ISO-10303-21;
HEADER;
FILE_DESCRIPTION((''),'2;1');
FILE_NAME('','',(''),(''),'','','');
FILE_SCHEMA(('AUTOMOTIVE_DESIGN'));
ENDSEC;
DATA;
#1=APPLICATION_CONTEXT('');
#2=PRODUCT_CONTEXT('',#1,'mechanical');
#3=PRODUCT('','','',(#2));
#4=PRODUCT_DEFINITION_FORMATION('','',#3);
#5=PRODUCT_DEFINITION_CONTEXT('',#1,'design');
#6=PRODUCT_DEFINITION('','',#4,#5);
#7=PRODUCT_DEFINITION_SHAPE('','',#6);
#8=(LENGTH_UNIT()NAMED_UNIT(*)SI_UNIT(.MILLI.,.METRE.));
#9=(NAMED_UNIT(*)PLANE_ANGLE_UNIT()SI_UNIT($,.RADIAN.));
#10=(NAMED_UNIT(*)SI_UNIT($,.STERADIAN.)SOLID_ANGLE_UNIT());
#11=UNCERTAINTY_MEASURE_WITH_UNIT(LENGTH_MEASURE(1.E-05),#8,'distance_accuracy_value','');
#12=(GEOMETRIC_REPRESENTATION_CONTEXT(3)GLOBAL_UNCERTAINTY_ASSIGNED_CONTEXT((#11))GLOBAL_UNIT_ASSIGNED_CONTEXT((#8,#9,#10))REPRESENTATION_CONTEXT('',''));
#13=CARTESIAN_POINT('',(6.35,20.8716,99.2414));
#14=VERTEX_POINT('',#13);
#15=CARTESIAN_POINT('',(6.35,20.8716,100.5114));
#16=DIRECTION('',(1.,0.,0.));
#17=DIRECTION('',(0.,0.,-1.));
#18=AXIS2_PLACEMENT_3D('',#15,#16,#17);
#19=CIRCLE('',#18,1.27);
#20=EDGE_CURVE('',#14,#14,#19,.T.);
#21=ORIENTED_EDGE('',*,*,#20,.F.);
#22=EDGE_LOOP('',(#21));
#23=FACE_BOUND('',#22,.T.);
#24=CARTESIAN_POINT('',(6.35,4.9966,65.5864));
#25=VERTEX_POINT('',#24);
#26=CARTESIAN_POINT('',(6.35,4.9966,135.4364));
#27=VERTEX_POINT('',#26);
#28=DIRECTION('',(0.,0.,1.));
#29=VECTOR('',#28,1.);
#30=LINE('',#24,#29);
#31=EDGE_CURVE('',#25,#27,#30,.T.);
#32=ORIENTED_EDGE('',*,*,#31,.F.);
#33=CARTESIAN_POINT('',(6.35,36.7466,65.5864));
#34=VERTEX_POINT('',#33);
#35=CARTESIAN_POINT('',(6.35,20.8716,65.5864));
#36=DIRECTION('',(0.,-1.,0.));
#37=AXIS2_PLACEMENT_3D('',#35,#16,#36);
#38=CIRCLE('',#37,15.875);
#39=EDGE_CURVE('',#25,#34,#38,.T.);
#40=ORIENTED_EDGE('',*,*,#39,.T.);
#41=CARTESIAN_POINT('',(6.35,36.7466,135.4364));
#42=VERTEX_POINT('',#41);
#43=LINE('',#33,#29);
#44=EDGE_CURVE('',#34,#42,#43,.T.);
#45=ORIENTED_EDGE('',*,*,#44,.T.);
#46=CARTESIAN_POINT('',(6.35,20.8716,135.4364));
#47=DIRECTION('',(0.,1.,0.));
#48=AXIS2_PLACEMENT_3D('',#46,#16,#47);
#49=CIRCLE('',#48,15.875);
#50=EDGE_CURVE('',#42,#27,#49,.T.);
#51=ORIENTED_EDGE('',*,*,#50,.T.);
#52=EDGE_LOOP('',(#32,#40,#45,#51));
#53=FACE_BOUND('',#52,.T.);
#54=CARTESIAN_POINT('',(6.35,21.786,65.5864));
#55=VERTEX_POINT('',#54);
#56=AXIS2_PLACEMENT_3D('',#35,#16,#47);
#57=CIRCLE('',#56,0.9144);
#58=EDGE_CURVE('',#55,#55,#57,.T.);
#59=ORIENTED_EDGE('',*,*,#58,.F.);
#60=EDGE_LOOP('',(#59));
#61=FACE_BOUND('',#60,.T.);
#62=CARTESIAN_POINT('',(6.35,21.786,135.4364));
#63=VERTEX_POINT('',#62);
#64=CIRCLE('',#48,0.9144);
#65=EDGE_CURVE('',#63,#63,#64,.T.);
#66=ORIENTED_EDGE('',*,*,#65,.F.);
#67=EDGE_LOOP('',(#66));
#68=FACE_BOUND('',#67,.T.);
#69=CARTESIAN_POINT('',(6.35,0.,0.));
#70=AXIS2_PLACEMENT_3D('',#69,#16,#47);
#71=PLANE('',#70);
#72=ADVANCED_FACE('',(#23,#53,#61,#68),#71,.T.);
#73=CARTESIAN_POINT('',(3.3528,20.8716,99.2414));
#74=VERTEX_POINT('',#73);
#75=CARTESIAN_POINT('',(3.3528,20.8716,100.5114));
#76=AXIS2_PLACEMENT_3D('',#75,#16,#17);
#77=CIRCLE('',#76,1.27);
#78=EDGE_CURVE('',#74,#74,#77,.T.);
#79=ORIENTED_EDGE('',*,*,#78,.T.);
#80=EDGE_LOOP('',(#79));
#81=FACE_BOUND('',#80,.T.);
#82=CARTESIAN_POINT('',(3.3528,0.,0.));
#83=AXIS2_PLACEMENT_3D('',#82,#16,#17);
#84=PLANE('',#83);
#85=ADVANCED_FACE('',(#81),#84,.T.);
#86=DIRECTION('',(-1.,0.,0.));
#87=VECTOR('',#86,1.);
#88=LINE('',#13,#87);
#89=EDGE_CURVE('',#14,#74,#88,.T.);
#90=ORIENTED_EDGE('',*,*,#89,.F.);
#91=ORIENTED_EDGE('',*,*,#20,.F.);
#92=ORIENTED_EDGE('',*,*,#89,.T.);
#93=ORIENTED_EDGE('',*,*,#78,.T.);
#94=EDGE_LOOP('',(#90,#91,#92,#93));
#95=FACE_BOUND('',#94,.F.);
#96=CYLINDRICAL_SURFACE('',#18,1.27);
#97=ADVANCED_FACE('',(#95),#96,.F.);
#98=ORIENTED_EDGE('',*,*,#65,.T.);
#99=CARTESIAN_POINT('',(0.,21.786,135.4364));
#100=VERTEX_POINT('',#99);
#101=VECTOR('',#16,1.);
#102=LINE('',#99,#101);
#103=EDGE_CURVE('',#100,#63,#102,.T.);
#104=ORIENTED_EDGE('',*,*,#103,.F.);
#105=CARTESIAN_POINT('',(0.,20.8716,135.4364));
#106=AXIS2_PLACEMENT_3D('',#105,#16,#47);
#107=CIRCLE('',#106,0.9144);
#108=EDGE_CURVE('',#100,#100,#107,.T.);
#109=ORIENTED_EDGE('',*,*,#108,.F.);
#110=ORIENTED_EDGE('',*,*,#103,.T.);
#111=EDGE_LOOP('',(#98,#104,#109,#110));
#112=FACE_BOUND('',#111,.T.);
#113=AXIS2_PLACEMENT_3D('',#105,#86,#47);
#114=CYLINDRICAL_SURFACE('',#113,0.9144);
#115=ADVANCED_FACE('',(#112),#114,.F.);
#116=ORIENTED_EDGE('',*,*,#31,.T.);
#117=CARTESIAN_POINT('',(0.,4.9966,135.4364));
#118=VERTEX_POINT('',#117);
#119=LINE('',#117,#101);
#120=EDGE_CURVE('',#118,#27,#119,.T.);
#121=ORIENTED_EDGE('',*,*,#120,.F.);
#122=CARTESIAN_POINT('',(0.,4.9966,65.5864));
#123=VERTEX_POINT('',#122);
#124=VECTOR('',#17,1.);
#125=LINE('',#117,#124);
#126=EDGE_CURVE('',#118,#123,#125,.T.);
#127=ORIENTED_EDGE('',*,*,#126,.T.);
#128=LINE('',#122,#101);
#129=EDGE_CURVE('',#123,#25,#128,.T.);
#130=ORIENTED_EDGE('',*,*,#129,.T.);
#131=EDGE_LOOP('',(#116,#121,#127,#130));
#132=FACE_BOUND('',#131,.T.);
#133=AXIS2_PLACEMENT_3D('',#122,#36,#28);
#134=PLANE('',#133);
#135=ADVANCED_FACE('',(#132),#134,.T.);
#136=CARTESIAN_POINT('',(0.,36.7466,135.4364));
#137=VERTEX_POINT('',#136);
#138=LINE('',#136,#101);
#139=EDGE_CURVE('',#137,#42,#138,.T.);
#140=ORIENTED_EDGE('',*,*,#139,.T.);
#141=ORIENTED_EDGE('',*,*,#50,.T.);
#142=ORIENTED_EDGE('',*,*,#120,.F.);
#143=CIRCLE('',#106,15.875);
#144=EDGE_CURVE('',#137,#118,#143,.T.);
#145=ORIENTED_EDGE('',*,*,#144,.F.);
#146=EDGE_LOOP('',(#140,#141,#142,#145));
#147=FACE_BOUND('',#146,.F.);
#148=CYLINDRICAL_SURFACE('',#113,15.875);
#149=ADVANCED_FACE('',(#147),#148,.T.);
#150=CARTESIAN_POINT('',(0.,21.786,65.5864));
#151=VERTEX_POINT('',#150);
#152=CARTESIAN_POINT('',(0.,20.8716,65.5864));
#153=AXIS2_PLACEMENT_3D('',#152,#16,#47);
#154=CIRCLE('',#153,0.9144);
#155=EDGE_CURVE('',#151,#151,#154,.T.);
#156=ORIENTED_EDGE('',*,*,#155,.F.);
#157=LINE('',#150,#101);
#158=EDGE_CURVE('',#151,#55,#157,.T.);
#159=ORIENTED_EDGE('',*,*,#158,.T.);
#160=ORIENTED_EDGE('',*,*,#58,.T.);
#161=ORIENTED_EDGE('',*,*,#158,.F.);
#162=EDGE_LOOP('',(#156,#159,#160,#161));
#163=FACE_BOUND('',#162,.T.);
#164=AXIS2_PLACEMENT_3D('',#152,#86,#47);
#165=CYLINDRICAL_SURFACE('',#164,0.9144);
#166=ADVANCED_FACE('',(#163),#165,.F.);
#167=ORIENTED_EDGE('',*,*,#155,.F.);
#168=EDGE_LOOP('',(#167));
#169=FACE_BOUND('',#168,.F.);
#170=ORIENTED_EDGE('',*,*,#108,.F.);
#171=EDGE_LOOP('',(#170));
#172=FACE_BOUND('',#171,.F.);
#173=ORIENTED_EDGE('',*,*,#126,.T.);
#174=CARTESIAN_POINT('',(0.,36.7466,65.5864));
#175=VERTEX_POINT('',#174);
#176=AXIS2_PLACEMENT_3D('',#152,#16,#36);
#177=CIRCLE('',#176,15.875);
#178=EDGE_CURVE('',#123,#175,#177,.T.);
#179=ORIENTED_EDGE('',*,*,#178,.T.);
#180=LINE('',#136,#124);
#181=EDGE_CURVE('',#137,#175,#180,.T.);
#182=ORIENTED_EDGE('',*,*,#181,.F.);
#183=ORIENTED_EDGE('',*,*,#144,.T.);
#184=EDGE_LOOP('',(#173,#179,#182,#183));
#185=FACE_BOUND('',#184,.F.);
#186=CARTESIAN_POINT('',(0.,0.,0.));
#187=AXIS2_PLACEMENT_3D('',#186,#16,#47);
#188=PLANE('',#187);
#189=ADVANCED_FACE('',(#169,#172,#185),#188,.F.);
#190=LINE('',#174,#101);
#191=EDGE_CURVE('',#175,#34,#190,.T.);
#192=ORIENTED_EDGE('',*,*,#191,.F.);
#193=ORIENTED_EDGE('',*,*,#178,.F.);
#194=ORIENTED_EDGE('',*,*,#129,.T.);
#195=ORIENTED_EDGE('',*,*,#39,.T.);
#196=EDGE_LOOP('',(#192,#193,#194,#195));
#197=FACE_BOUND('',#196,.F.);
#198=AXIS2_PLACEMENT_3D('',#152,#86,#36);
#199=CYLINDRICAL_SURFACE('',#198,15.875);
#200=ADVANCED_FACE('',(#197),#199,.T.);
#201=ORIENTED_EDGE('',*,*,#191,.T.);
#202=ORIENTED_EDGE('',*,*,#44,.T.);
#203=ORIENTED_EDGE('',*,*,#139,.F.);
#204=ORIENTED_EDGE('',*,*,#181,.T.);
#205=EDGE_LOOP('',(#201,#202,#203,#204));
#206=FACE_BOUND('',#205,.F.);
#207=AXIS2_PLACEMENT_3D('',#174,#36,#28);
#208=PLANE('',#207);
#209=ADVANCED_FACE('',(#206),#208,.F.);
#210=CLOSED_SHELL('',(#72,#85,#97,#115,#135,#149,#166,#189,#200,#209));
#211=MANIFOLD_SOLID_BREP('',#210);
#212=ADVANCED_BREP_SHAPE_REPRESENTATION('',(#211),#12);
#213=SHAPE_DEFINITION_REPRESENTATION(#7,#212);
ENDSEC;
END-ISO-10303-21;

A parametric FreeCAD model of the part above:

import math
import FreeCAD as App
import Part
import Sketcher
Q = App.Units.Quantity

doc = App.newDocument("Part")
body = doc.addObject("PartDesign::Body", "Body")

sketch1 = doc.addObject("Sketcher::SketchObject", "Sketch")
body.addObject(sketch1)
sketch1.AttachmentSupport = (doc.YZ_Plane, [""])
sketch1.MapMode = "FlatFace"
sketch1.addGeometry([
    Part.LineSegment(App.Vector(5, 135.4, 0), App.Vector(5, 65.6, 0)),
    Part.ArcOfCircle(Part.Circle(App.Vector(20.9, 65.6, 0), App.Vector(0, 0, 1), 15.9), math.radians(180), math.radians(360)),
    Part.LineSegment(App.Vector(36.7, 65.6, 0), App.Vector(36.7, 135.4, 0)),
    Part.ArcOfCircle(Part.Circle(App.Vector(20.9, 135.4, 0), App.Vector(0, 0, 1), 15.9), math.radians(0), math.radians(180)),
    Part.Circle(App.Vector(20.9, 65.6, 0), App.Vector(0, 0, 1), 0.9),
    Part.Circle(App.Vector(20.9, 135.4, 0), App.Vector(0, 0, 1), 0.9),
], False)
sketch1.addConstraint([
    Sketcher.Constraint("Tangent", 0, 2, 1, 1),
    Sketcher.Constraint("Tangent", 1, 2, 2, 1),
    Sketcher.Constraint("Tangent", 2, 2, 3, 1),
    Sketcher.Constraint("Tangent", 3, 2, 0, 1),
    Sketcher.Constraint("Vertical", 0),
    Sketcher.Constraint("Vertical", 2),
    Sketcher.Constraint("Coincident", 4, 3, 1, 3),
    Sketcher.Constraint("Coincident", 5, 3, 3, 3),
    Sketcher.Constraint("Equal", 4, 5),
    Sketcher.Constraint("Diameter", 4, Q("0.072 in")),
    Sketcher.Constraint("Radius", 1, Q("0.625 in")),
    Sketcher.Constraint("DistanceY", 0, 2, 0, 1, Q("2.75 in")),
    Sketcher.Constraint("DistanceX", -1, 1, 1, 3, Q("20.8716 mm")),
    Sketcher.Constraint("DistanceY", -1, 1, 1, 3, Q("65.5864 mm")),
])
pad1 = doc.addObject("PartDesign::Pad", "Pad")
body.addObject(pad1)
pad1.Profile = sketch1
pad1.Length = Q("0.25 in")

sketch2 = doc.addObject("Sketcher::SketchObject", "Sketch001")
body.addObject(sketch2)
sketch2.AttachmentSupport = (doc.YZ_Plane, [""])
sketch2.MapMode = "FlatFace"
sketch2.AttachmentOffset = App.Placement(App.Vector(0, 0, 0.25 * 25.4), App.Rotation())
sketch2.addGeometry(Part.Circle(App.Vector(20.9, 100.5, 0), App.Vector(0, 0, 1), 1.3), False)
sketch2.addConstraint([
    Sketcher.Constraint("Diameter", 0, Q("0.1 in")),
    Sketcher.Constraint("DistanceX", -1, 1, 0, 3, Q("20.8716 mm")),
    Sketcher.Constraint("DistanceY", -1, 1, 0, 3, Q("100.5114 mm")),
])
pocket1 = doc.addObject("PartDesign::Pocket", "Pocket")
body.addObject(pocket1)
pocket1.Profile = sketch2
pocket1.Length = Q("0.118 in")

doc.recompute()
